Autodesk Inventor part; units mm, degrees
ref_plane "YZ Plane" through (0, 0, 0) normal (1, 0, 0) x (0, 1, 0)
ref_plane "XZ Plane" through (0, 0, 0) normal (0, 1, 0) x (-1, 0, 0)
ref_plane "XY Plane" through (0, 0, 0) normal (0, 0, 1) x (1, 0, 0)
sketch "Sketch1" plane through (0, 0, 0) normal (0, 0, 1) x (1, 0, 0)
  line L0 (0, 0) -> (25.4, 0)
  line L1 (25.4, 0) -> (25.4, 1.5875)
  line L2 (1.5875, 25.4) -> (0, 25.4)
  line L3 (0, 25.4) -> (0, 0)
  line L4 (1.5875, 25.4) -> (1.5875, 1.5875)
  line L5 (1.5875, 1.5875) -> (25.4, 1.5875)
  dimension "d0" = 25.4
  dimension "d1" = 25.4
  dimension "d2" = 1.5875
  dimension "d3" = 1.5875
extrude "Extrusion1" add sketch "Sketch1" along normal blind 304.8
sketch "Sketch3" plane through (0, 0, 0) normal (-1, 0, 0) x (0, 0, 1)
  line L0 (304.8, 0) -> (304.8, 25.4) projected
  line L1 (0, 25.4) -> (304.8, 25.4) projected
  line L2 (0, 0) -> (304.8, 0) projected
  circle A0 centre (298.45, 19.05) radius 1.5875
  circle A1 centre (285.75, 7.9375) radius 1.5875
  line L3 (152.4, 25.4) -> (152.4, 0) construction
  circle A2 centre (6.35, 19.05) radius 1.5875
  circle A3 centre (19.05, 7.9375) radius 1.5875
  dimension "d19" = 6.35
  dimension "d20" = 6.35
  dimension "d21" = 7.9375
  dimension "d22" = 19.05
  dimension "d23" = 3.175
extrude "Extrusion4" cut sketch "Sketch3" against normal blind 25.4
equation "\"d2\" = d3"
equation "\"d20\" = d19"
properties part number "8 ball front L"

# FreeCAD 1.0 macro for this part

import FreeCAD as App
import Part
import Sketcher

V = App.Vector
Q = App.Units.Quantity

doc = App.newDocument("Part")
body = doc.addObject("PartDesign::Body", "Body")

# Sketch on XY plane
sketch1 = body.newObject("Sketcher::SketchObject", "Sketch")
sketch1.AttachmentSupport = (doc.getObject("XY_Plane"), [""])
sketch1.MapMode = "FlatFace"
sketch1.addGeometry([
    Part.LineSegment(V(0, 25.4, 0), V(0, 0, 0)),  # 0
    Part.LineSegment(V(0, 0, 0), V(25.4, 0, 0)),  # 1
    Part.LineSegment(V(25.4, 0, 0), V(25.4, 1.6, 0)),  # 2
    Part.LineSegment(V(25.4, 1.6, 0), V(1.6, 1.6, 0)),  # 3
    Part.LineSegment(V(1.6, 1.6, 0), V(1.6, 25.4, 0)),  # 4
    Part.LineSegment(V(1.6, 25.4, 0), V(0, 25.4, 0)),  # 5
], False)
sketch1.addConstraint([
    Sketcher.Constraint("Coincident", 0, 2, 1, 1),
    Sketcher.Constraint("Coincident", 1, 2, 2, 1),
    Sketcher.Constraint("Coincident", 2, 2, 3, 1),
    Sketcher.Constraint("Coincident", 3, 2, 4, 1),
    Sketcher.Constraint("Coincident", 4, 2, 5, 1),
    Sketcher.Constraint("Coincident", 5, 2, 0, 1),
    Sketcher.Constraint("Vertical", 0),
    Sketcher.Constraint("Horizontal", 1),
    Sketcher.Constraint("Vertical", 2),
    Sketcher.Constraint("Horizontal", 3),
    Sketcher.Constraint("Vertical", 4),
    Sketcher.Constraint("Horizontal", 5),
    Sketcher.Constraint("Coincident", 0, 2, -1, 1),
    Sketcher.Constraint("Equal", 1, 0),
    Sketcher.Constraint("Equal", 5, 2),
    Sketcher.Constraint("DistanceX", 1, 1, 1, 2, Q("1 in")),
    Sketcher.Constraint("DistanceX", 5, 2, 5, 1, Q("0.0625 in")),
])
pad1 = body.newObject("PartDesign::Pad", "Pad")
pad1.Profile = sketch1
pad1.Length = Q("12 in")

# Sketch on YZ plane
sketch2 = body.newObject("Sketcher::SketchObject", "Sketch001")
sketch2.AttachmentSupport = (doc.getObject("YZ_Plane"), [""])
sketch2.MapMode = "FlatFace"
sketch2.addGeometry([
    Part.Circle(V(19.1, 298.4, 0), V(0, 0, 1), 1.6),
    Part.Circle(V(7.9, 285.8, 0), V(0, 0, 1), 1.6),
    Part.Circle(V(19.1, 6.3, 0), V(0, 0, 1), 1.6),
    Part.Circle(V(7.9, 19.1, 0), V(0, 0, 1), 1.6),
], False)
sketch2.addConstraint([
    Sketcher.Constraint("Equal", 0, 1),
    Sketcher.Constraint("Equal", 1, 2),
    Sketcher.Constraint("Equal", 2, 3),
    Sketcher.Constraint("Vertical", 0, 3, 2, 3),
    Sketcher.Constraint("Vertical", 1, 3, 3, 3),
    Sketcher.Constraint("Diameter", 0, Q("0.125 in")),
    Sketcher.Constraint("DistanceX", -1, 1, 0, 3, Q("0.75 in")),
    Sketcher.Constraint("DistanceY", -1, 1, 2, 3, Q("0.25 in")),
    Sketcher.Constraint("DistanceY", -1, 1, 3, 3, Q("0.75 in")),
    Sketcher.Constraint("DistanceX", -1, 1, 1, 3, Q("0.3125 in")),
    Sketcher.Constraint("DistanceY", 2, 3, 1, 3, Q("11 in")),
    Sketcher.Constraint("DistanceY", 3, 3, 0, 3, Q("11 in")),
])
pocket1 = body.newObject("PartDesign::Pocket", "Pocket")
pocket1.Profile = sketch2
pocket1.Length = Q("1 in")
pocket1.Reversed = True

doc.recompute()
